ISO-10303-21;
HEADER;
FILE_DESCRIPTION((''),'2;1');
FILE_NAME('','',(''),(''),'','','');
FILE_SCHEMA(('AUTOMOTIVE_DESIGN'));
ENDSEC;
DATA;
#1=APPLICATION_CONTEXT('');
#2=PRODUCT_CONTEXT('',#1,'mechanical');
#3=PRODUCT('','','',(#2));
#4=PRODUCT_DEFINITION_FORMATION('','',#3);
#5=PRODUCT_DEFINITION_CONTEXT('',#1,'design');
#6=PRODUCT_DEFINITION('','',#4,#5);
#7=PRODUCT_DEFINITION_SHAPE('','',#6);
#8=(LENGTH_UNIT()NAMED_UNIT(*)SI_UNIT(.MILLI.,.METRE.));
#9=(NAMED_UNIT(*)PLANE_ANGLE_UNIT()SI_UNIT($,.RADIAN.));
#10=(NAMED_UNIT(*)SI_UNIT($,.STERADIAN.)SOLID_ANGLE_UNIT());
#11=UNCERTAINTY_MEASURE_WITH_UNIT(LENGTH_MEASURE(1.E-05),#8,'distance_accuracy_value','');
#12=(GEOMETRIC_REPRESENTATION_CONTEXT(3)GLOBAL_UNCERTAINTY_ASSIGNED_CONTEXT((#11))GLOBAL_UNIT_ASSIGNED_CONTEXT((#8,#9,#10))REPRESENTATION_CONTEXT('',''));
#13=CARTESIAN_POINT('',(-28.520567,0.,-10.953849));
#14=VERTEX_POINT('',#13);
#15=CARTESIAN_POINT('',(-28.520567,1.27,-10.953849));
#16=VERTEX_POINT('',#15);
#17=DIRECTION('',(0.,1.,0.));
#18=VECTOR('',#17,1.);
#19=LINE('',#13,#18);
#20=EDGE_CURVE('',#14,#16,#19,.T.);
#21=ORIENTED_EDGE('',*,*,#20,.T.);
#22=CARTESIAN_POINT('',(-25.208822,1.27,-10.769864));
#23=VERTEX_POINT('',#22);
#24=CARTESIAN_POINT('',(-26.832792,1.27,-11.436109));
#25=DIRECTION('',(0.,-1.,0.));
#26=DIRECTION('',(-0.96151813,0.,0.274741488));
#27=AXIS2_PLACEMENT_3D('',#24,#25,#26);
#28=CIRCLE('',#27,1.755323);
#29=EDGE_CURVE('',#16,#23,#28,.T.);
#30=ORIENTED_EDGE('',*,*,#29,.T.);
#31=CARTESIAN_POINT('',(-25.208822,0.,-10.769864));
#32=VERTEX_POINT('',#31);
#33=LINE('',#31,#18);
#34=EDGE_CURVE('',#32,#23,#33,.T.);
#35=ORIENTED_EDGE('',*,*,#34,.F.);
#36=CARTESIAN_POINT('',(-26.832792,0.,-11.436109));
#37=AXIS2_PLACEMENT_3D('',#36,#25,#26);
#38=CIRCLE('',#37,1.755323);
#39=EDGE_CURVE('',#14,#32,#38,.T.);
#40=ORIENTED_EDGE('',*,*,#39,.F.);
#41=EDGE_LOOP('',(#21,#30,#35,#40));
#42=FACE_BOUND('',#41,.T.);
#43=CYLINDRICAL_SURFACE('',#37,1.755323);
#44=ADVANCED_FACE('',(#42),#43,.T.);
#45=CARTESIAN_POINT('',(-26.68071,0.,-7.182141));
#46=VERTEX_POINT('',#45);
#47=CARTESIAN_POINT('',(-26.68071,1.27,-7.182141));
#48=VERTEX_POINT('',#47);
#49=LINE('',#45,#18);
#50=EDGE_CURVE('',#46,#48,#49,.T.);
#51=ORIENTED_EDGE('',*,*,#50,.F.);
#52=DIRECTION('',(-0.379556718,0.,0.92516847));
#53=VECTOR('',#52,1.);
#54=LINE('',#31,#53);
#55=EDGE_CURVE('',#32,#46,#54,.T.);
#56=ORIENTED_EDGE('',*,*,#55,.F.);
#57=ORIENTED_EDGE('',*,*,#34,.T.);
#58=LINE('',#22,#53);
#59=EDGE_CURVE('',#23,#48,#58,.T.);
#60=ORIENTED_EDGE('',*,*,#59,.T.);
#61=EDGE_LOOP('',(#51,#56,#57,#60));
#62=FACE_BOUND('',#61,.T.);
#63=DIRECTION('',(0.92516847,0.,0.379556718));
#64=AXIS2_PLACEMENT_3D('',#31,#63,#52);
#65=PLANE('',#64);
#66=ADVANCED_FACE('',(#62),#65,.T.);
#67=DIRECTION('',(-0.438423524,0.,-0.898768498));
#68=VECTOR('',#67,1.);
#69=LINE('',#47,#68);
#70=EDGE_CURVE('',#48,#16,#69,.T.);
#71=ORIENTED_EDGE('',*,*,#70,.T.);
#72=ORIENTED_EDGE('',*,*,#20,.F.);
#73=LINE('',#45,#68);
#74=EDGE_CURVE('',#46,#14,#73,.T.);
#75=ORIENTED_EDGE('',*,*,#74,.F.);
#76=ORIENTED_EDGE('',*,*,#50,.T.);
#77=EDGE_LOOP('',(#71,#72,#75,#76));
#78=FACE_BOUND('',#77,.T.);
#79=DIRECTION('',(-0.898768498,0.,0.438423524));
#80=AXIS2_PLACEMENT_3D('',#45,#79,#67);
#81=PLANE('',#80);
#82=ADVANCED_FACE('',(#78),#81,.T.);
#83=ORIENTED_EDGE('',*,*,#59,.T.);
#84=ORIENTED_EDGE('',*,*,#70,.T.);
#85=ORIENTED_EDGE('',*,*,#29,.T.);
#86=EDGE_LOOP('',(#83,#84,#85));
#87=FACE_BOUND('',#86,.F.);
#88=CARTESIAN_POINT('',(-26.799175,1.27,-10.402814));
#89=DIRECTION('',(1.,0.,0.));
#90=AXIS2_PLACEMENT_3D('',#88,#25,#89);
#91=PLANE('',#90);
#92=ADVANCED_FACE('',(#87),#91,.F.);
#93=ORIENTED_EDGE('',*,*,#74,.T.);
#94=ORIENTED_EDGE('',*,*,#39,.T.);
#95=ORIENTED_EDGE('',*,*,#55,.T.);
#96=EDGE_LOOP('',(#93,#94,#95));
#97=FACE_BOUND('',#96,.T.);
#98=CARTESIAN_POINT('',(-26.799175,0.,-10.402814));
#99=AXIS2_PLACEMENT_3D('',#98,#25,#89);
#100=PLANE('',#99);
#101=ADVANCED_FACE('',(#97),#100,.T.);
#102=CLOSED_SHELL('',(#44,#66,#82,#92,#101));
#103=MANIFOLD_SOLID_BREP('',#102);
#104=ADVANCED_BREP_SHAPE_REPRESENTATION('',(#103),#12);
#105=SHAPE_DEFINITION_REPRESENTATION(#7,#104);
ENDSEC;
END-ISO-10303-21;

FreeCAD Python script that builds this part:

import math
import FreeCAD as App
import Part
import Sketcher

doc = App.newDocument("Part")
params = doc.addObject("Spreadsheet::Sheet", "Params")
for row, (alias, value) in enumerate([
    ("pad1_length", "0.05 in"),
], start=1):
    params.set(f"A{row}", alias)
    params.set(f"B{row}", "=" + value)
    params.setAlias(f"B{row}", alias)

body = doc.addObject("PartDesign::Body", "Body")

sketch1 = body.newObject("Sketcher::SketchObject", "Sketch")
sketch1.AttachmentSupport = (doc.getObject("XZ_Plane"), [""])
sketch1.MapMode = "FlatFace"
sketch1.addGeometry([
    Part.LineSegment(App.Vector(-26.68071, -7.182141, 0), App.Vector(-28.520567, -10.953849, 0)),
    Part.ArcOfCircle(Part.Circle(App.Vector(-26.832792, -11.436109, 0), App.Vector(0, 0, 1), 1.755323), math.radians(164.053391), math.radians(382.306241)),
    Part.LineSegment(App.Vector(-25.208822, -10.769864, 0), App.Vector(-26.68071, -7.182141, 0)),
], False)
sketch1.addConstraint([
    Sketcher.Constraint("Coincident", 0, 2, 1, 1),
    Sketcher.Constraint("Tangent", 1, 2, 2, 1),
    Sketcher.Constraint("Coincident", 2, 2, 0, 1),
    Sketcher.Constraint("Radius", 1, 1.755323),
    Sketcher.Constraint("Distance", 0, 4.196529),
    Sketcher.Constraint("DistanceX", 1, 3, -1, 1, 26.832792),
    Sketcher.Constraint("DistanceY", 1, 3, -1, 1, 11.436109),
    Sketcher.Constraint("DistanceY", 0, 2, -1, 1, 10.953849),
    Sketcher.Constraint("DistanceX", 2, 2, -1, 1, 26.68071),
])
pad1 = body.newObject("PartDesign::Pad", "Pad")
pad1.Profile = sketch1
pad1.setExpression("Length", "Params.pad1_length")
pad1.Reversed = True

doc.recompute()
